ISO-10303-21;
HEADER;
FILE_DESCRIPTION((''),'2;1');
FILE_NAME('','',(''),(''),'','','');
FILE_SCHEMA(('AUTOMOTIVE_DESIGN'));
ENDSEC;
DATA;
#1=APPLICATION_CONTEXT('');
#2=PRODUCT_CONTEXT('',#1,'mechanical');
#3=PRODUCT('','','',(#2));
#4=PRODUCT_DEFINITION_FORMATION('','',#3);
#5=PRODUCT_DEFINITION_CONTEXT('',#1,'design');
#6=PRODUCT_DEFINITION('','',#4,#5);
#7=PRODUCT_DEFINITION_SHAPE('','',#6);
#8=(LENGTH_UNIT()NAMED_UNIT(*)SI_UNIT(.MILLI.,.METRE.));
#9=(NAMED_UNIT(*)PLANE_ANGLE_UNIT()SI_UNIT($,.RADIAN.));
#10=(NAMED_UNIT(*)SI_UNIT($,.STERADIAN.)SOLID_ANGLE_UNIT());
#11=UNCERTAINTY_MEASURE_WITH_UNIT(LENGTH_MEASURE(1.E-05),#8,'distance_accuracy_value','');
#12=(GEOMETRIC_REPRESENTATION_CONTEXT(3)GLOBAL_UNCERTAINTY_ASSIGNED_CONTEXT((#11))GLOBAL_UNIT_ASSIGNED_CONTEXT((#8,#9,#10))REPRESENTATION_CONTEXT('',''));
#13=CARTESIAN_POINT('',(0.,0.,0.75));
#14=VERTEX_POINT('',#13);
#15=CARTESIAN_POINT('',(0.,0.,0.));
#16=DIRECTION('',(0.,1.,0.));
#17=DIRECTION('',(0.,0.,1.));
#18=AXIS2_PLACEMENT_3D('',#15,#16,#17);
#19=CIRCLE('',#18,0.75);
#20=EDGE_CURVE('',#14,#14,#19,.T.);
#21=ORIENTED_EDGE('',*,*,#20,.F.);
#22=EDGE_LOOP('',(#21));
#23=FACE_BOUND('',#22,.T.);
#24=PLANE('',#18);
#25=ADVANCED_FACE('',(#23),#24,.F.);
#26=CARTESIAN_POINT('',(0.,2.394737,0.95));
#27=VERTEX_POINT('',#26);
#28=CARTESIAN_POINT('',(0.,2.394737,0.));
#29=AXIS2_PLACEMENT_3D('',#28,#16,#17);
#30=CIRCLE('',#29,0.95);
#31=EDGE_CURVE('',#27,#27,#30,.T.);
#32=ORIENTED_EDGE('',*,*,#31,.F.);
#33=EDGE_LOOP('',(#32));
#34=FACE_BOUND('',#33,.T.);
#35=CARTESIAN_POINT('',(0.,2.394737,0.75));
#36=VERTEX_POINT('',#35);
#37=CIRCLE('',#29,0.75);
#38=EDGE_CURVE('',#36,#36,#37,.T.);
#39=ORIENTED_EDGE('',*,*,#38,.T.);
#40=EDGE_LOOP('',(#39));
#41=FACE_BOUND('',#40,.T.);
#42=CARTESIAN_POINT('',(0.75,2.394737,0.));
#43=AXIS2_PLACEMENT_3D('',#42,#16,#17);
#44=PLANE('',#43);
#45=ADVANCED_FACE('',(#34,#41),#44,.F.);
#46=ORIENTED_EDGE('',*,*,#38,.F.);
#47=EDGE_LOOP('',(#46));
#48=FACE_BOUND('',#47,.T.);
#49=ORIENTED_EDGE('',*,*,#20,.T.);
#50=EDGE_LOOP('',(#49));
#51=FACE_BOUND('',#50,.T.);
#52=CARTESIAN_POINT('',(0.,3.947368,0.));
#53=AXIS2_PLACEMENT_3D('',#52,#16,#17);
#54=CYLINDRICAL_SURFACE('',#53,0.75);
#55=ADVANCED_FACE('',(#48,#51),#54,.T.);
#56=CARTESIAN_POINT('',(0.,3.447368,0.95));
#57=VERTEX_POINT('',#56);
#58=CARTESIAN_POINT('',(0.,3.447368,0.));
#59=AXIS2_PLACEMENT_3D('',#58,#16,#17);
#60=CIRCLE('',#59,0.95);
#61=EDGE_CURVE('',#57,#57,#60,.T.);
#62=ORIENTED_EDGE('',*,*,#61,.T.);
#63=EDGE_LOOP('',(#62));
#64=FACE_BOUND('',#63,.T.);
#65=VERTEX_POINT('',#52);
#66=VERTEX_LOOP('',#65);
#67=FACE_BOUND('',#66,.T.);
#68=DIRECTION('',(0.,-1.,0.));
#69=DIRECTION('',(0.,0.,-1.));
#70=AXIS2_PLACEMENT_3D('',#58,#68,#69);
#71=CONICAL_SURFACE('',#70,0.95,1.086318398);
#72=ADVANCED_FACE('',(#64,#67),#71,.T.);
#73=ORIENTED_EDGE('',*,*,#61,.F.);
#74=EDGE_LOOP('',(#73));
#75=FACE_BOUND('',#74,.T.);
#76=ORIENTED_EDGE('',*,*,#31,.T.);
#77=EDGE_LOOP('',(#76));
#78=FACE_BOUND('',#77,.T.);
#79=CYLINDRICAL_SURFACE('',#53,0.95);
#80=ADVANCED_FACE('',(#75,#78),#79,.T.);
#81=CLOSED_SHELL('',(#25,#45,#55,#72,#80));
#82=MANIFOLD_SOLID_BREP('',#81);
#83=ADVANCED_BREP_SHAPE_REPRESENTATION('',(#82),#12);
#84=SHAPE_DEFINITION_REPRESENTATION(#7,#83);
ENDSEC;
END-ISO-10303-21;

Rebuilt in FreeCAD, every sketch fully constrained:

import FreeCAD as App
import Part
import Sketcher

doc = App.newDocument("Part")
body = doc.addObject("PartDesign::Body", "Body")

# Sketch on XY plane
sketch1 = body.newObject("Sketcher::SketchObject", "Sketch")
sketch1.AttachmentSupport = (doc.getObject("XY_Plane"), [""])
sketch1.MapMode = "FlatFace"
sketch1.addGeometry([
    Part.LineSegment(App.Vector(0, 0, 0), App.Vector(0.75, 0, 0)),  # 0
    Part.LineSegment(App.Vector(0.75, 0, 0), App.Vector(0.75, 2.394737, 0)),  # 1
    Part.LineSegment(App.Vector(0.75, 2.394737, 0), App.Vector(0.95, 2.394737, 0)),  # 2
    Part.LineSegment(App.Vector(0.95, 2.394737, 0), App.Vector(0.95, 3.447368, 0)),  # 3
    Part.LineSegment(App.Vector(0.95, 3.447368, 0), App.Vector(0, 3.947368, 0)),  # 4
    Part.LineSegment(App.Vector(0, 3.947368, 0), App.Vector(0, 0, 0)),  # 5
], False)
sketch1.addConstraint([
    Sketcher.Constraint("Coincident", 0, 2, 1, 1),
    Sketcher.Constraint("Coincident", 1, 2, 2, 1),
    Sketcher.Constraint("Coincident", 2, 2, 3, 1),
    Sketcher.Constraint("Coincident", 3, 2, 4, 1),
    Sketcher.Constraint("Coincident", 4, 2, 5, 1),
    Sketcher.Constraint("Coincident", 5, 2, 0, 1),
    Sketcher.Constraint("Horizontal", 0),
    Sketcher.Constraint("Vertical", 1),
    Sketcher.Constraint("Horizontal", 2),
    Sketcher.Constraint("Vertical", 3),
    Sketcher.Constraint("Vertical", 5),
    Sketcher.Constraint("Coincident", 5, 2, -1, 1),
    Sketcher.Constraint("DistanceX", 2, 1, 2, 2, 0.2),
    Sketcher.Constraint("DistanceX", 0, 1, 0, 2, 0.75),
    Sketcher.Constraint("DistanceY", 3, 2, 4, 2, 0.5),
    Sketcher.Constraint("DistanceY", 3, 1, 3, 2, 1.052632),
    Sketcher.Constraint("DistanceY", 5, 2, 5, 1, 3.947368),
])
revolution = body.newObject("PartDesign::Revolution", "Revolution")
revolution.Profile = sketch1
revolution.ReferenceAxis = (sketch1, ["V_Axis"])
revolution.Angle = 360

doc.recompute()
